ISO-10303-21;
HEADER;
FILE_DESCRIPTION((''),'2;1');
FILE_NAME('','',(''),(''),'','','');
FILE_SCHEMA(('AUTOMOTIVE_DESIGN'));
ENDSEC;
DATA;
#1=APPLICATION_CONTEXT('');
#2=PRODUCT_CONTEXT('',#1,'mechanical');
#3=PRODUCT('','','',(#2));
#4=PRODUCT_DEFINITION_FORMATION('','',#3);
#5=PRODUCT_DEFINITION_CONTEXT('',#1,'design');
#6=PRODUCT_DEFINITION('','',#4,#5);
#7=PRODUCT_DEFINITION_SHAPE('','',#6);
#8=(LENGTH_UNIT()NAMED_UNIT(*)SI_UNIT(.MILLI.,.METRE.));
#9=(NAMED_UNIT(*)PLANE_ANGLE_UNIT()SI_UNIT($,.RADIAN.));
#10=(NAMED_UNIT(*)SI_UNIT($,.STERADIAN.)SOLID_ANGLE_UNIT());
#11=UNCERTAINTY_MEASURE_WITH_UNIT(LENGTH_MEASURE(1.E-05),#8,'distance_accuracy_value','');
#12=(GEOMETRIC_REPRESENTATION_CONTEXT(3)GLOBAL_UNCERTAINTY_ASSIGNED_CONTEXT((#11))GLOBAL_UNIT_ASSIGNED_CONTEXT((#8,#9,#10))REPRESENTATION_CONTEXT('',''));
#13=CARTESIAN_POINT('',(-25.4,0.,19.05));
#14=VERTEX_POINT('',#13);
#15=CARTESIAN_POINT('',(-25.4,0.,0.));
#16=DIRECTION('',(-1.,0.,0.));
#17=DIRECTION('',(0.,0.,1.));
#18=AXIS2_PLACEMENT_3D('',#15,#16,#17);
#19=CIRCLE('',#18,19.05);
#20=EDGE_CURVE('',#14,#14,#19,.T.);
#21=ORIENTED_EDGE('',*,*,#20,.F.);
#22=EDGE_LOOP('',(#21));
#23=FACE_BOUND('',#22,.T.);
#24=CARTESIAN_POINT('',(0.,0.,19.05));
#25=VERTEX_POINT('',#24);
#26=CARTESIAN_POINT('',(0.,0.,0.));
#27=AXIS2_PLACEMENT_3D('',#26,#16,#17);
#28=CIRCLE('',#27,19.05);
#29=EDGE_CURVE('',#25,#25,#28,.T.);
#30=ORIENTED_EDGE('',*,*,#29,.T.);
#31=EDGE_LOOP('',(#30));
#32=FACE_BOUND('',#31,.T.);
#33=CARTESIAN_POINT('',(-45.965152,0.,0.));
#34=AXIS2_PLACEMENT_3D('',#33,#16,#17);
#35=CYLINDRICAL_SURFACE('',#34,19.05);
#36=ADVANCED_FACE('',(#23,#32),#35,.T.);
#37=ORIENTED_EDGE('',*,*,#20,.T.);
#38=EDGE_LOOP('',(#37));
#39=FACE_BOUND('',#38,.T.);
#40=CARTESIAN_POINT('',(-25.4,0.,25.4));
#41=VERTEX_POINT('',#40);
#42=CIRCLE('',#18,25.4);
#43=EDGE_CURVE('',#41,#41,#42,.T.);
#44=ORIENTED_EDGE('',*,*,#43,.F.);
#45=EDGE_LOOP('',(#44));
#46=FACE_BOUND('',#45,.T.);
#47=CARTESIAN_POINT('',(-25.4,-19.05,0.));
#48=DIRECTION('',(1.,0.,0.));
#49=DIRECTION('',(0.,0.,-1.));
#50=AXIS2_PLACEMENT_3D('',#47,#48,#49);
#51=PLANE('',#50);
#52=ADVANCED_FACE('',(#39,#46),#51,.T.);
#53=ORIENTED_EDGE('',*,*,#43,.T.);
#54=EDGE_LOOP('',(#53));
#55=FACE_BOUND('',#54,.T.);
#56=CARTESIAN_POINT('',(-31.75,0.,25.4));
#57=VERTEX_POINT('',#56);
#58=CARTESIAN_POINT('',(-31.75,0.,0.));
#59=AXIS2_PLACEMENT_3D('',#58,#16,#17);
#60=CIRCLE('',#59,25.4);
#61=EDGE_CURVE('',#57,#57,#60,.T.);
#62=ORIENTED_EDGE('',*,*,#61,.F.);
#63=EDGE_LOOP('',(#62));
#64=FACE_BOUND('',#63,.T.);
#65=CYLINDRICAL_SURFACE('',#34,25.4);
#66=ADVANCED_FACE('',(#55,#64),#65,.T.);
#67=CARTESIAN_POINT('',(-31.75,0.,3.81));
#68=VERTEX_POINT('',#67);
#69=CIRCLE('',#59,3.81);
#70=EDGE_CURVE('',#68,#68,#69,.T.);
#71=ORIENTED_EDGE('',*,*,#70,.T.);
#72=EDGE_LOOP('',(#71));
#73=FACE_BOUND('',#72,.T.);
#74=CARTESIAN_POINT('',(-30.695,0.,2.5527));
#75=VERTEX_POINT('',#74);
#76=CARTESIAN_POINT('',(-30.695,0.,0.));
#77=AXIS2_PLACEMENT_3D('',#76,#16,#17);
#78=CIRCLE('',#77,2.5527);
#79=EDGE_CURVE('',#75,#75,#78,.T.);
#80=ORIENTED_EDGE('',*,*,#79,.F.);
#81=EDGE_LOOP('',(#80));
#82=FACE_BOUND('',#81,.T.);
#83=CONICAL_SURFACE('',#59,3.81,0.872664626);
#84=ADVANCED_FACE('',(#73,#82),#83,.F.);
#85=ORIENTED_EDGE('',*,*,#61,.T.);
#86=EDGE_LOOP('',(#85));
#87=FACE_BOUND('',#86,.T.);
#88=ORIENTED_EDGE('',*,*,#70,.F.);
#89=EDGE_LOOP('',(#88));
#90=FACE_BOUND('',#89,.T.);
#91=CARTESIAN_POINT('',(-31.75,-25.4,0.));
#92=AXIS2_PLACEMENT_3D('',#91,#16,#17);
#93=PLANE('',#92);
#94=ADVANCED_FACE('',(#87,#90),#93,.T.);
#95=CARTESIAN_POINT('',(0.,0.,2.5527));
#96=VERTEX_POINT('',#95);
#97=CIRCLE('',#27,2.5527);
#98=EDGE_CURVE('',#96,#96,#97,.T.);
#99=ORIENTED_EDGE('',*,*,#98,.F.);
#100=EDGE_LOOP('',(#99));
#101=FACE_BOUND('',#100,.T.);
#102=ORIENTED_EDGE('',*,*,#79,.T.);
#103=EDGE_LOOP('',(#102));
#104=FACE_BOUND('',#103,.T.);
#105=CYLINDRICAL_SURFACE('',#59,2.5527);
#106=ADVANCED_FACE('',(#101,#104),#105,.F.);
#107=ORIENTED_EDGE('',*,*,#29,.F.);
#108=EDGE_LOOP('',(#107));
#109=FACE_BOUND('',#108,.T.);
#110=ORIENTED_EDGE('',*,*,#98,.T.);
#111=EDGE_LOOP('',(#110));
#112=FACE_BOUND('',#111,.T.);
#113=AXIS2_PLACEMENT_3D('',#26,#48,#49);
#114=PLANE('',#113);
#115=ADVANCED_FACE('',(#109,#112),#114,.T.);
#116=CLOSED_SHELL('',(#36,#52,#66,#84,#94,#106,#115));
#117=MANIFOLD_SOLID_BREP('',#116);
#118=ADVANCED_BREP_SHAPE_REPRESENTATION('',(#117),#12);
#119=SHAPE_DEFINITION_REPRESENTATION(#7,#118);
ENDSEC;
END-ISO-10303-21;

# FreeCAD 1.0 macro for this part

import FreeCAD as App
import Part
import Sketcher
from FreeCAD import Vector
Q = App.Units.Quantity

doc = App.newDocument("Part")
body = doc.addObject("PartDesign::Body", "Body")

sketch1 = body.newObject("Sketcher::SketchObject", "Sketch")
sketch1.AttachmentSupport = (doc.getObject("XY_Plane"), [""])
sketch1.MapMode = "FlatFace"
sketch1.addGeometry([
    Part.LineSegment(Vector(0, -19, 0), Vector(0, 0, 0)),
    Part.LineSegment(Vector(0, 0, 0), Vector(-32, 0, 0)),
    Part.LineSegment(Vector(-32, 0, 0), Vector(-32, -25, 0)),
    Part.LineSegment(Vector(-32, -25, 0), Vector(-25, -25, 0)),
    Part.LineSegment(Vector(-25, -25, 0), Vector(-25, -19, 0)),
    Part.LineSegment(Vector(-25, -19, 0), Vector(0, -19, 0)),
], False)
sketch1.addConstraint([
    Sketcher.Constraint("Coincident", 0, 2, 1, 1),
    Sketcher.Constraint("Coincident", 1, 2, 2, 1),
    Sketcher.Constraint("Coincident", 2, 2, 3, 1),
    Sketcher.Constraint("Coincident", 3, 2, 4, 1),
    Sketcher.Constraint("Coincident", 4, 2, 5, 1),
    Sketcher.Constraint("Coincident", 5, 2, 0, 1),
    Sketcher.Constraint("Vertical", 0),
    Sketcher.Constraint("Horizontal", 1),
    Sketcher.Constraint("Vertical", 2),
    Sketcher.Constraint("Horizontal", 3),
    Sketcher.Constraint("Vertical", 4),
    Sketcher.Constraint("Horizontal", 5),
    Sketcher.Constraint("Coincident", 0, 2, -1, 1),
    Sketcher.Constraint("Equal", 5, 2),
    Sketcher.Constraint("Equal", 3, 4),
    Sketcher.Constraint("DistanceX", 5, 1, 5, 2, Q("1 in")),
    Sketcher.Constraint("DistanceX", 1, 2, 1, 1, Q("1.25 in")),
])
revolution = body.newObject("PartDesign::Revolution", "Revolution")
revolution.Profile = sketch1
revolution.ReferenceAxis = (sketch1, ["H_Axis"])
revolution.Angle = 360

sketch2 = body.newObject("Sketcher::SketchObject", "Sketch001")
sketch2.AttachmentSupport = (doc.getObject("YZ_Plane"), [""])
sketch2.MapMode = "FlatFace"
sketch2.AttachmentOffset = App.Placement(Vector(0, 0, -1.25 * 25.4), App.Rotation())
sketch2.addGeometry(Part.Circle(Vector(0, 0, 0), Vector(0, 0, 1), 2.6), False)
sketch2.addConstraint([
    Sketcher.Constraint("Coincident", 0, 3, -1, 1),
    Sketcher.Constraint("Diameter", 0, Q("0.201 in")),
])
doc.recompute()
hole = body.newObject("PartDesign::Hole", "Hole")
hole.Profile = sketch2
hole.ThreadType = "None"
hole.Diameter = Q("0.201 in")
hole.DepthType = "ThroughAll"
hole.HoleCutType = "Countersink"
hole.HoleCutDiameter = Q("0.3 in")
hole.HoleCutCountersinkAngle = 100
hole.Reversed = True

doc.recompute()
